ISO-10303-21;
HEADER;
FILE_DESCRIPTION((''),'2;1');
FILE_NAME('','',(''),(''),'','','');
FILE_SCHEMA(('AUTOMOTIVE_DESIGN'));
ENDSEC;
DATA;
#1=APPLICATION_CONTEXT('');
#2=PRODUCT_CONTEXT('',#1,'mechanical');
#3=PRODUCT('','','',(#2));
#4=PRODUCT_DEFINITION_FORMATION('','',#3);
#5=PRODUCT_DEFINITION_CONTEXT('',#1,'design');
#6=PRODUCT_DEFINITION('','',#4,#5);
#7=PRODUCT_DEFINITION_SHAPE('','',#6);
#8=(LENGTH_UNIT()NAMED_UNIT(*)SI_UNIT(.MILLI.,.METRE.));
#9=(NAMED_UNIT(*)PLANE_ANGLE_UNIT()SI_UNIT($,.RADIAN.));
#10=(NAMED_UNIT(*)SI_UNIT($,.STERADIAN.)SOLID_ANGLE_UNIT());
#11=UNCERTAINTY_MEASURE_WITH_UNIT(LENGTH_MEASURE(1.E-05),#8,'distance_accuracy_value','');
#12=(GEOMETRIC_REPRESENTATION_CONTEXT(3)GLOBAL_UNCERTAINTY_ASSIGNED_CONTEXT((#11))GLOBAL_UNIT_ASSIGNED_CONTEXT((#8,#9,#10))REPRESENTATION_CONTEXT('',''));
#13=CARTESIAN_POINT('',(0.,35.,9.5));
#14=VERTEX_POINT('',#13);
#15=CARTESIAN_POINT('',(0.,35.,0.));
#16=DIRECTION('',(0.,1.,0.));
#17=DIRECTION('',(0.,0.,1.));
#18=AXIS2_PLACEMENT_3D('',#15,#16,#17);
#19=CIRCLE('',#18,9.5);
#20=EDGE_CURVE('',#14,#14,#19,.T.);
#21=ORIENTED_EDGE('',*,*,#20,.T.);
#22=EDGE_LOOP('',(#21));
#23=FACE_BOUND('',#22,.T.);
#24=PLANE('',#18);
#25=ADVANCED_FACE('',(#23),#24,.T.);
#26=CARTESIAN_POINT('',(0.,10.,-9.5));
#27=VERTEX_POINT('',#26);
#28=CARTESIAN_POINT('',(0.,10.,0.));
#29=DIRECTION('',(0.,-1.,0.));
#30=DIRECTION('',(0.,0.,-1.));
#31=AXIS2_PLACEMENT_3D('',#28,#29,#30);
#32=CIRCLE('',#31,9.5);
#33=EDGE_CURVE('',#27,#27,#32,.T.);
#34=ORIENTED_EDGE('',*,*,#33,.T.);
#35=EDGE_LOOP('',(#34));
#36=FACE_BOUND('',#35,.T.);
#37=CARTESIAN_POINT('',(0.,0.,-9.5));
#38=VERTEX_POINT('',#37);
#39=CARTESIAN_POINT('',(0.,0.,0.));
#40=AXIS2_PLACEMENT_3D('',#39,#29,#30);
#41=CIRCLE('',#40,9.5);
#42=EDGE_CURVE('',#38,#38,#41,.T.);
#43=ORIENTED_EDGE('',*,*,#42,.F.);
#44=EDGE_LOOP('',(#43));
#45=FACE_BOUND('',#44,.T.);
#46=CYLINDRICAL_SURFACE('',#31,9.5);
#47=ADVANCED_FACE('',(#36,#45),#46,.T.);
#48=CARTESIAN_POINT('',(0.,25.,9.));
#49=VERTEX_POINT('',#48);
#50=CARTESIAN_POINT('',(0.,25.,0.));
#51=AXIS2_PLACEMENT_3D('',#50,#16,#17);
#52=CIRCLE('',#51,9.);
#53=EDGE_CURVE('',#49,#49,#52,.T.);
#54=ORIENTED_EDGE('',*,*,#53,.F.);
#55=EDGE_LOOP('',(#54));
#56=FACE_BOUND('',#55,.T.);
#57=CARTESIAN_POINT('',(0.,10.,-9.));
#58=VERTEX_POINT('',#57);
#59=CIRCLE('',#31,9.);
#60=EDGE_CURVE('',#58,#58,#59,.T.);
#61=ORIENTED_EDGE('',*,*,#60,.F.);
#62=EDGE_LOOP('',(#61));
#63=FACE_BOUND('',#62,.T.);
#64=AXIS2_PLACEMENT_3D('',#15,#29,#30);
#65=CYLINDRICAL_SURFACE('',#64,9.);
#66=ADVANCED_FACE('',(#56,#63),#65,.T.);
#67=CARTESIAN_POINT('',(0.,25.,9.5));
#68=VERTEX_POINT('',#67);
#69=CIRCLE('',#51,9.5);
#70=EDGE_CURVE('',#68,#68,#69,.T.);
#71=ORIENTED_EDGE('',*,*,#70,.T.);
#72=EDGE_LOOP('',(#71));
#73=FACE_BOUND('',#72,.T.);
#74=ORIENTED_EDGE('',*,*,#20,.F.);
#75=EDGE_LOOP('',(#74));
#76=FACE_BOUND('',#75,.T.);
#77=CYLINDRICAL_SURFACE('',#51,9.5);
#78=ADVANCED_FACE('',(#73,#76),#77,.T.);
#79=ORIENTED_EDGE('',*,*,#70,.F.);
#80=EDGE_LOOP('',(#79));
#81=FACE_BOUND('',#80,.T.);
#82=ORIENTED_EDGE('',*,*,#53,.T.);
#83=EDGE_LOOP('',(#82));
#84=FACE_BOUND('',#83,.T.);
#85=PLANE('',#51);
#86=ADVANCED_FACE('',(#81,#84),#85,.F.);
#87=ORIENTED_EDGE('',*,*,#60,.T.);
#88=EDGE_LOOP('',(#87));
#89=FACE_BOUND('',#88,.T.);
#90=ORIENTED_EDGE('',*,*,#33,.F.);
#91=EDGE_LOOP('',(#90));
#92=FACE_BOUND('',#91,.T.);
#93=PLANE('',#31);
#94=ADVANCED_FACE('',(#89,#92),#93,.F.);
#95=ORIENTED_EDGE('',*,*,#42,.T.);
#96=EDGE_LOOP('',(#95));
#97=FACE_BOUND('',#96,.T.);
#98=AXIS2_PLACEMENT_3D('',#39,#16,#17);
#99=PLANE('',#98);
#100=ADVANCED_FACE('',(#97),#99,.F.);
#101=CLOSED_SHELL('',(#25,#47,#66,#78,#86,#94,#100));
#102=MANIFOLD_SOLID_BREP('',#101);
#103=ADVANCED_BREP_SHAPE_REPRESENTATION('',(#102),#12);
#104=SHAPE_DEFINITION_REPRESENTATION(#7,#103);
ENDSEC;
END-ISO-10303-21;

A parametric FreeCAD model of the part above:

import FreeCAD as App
import Part
import Sketcher

V = App.Vector
Q = App.Units.Quantity

doc = App.newDocument("Part")
body = doc.addObject("PartDesign::Body", "Body")

# Sketch on XZ plane
sketch1 = body.newObject("Sketcher::SketchObject", "Sketch")
sketch1.AttachmentSupport = (doc.getObject("XZ_Plane"), [""])
sketch1.MapMode = "FlatFace"
sketch1.addGeometry(Part.Circle(V(0, 0, 0), V(0, 0, 1), 9), False)
sketch1.addConstraint([
    Sketcher.Constraint("Coincident", 0, 3, -1, 1),
    Sketcher.Constraint("Diameter", 0, Q("18 mm")),
])
pad1 = body.newObject("PartDesign::Pad", "Pad")
pad1.Profile = sketch1
pad1.Length = 35
pad1.Reversed = True

# Sketch on XZ plane
sketch2 = body.newObject("Sketcher::SketchObject", "Sketch001")
sketch2.AttachmentSupport = (doc.getObject("XZ_Plane"), [""])
sketch2.MapMode = "FlatFace"
sketch2.AttachmentOffset = App.Placement(V(0, 0, -35), App.Rotation())
sketch2.addGeometry([
    Part.Circle(V(0, 0, 0), V(0, 0, 1), 9.5),
    Part.Circle(V(0, 0, 0), V(0, 0, 1), 9),
], False)
sketch2.addConstraint([
    Sketcher.Constraint("Coincident", 0, 3, -1, 1),
    Sketcher.Constraint("Coincident", 1, 3, -1, 1),
    Sketcher.Constraint("Diameter", 0, Q("19 mm")),
    Sketcher.Constraint("Diameter", 1, Q("18 mm")),
])
pad2 = body.newObject("PartDesign::Pad", "Pad001")
pad2.Profile = sketch2
pad2.Length = 10

# Sketch on XZ plane
sketch3 = body.newObject("Sketcher::SketchObject", "Sketch002")
sketch3.AttachmentSupport = (doc.getObject("XZ_Plane"), [""])
sketch3.MapMode = "FlatFace"
sketch3.addGeometry([
    Part.Circle(V(0, 0, 0), V(0, 0, 1), 9.5),
    Part.Circle(V(0, 0, 0), V(0, 0, 1), 9),
], False)
sketch3.addConstraint([
    Sketcher.Constraint("Coincident", 0, 3, -1, 1),
    Sketcher.Constraint("Coincident", 1, 3, -1, 1),
    Sketcher.Constraint("Diameter", 0, Q("19 mm")),
    Sketcher.Constraint("Diameter", 1, Q("18 mm")),
])
pad3 = body.newObject("PartDesign::Pad", "Pad002")
pad3.Profile = sketch3
pad3.Length = 10
pad3.Reversed = True

doc.recompute()
